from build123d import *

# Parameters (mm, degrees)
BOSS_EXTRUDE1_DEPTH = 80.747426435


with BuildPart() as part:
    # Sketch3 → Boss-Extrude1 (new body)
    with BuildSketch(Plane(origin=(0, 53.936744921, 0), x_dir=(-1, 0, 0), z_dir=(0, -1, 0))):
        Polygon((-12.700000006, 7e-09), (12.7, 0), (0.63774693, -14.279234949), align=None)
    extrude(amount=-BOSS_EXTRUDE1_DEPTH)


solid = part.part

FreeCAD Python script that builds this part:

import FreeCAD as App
import Part
import Sketcher
from FreeCAD import Vector
Q = App.Units.Quantity

doc = App.newDocument("Part")
body = doc.addObject("PartDesign::Body", "Body")

sketch1 = body.newObject("Sketcher::SketchObject", "Sketch")
sketch1.AttachmentSupport = (doc.getObject("XZ_Plane"), [""])
sketch1.MapMode = "FlatFace"
sketch1.AttachmentOffset = App.Placement(Vector(0, 0, -53.936745), App.Rotation())
sketch1.addGeometry(Part.LineSegment(Vector(-12.7, 0, 0), Vector(12.7, 0, 0)), False)
sketch1.addGeometry(Part.LineSegment(Vector(12.7, 0, 0), Vector(-0.637747, 14.279235, 0)), False)
sketch1.addGeometry(Part.LineSegment(Vector(-0.637747, 14.279235, 0), Vector(-12.7, 0, 0)), False)
sketch1.addConstraint(Sketcher.Constraint("Coincident", 0, 2, 1, 1))
sketch1.addConstraint(Sketcher.Constraint("Coincident", 1, 2, 2, 1))
sketch1.addConstraint(Sketcher.Constraint("Coincident", 2, 2, 0, 1))
sketch1.addConstraint(Sketcher.Constraint("Horizontal", 0))
sketch1.addConstraint(Sketcher.Constraint("Symmetric", 0, 2, 2, 2, -1, 1))
sketch1.addConstraint(Sketcher.Constraint("DistanceX", 0, 1, 0, 2, Q("1 in")))
sketch1.addConstraint(Sketcher.Constraint("Distance", 1, 19.5395))
sketch1.addConstraint(Sketcher.Constraint("Distance", 2, 18.692097))
pad1 = body.newObject("PartDesign::Pad", "Pad")
pad1.Profile = sketch1
pad1.Length = 80.747426
pad1.Reversed = True

doc.recompute()
